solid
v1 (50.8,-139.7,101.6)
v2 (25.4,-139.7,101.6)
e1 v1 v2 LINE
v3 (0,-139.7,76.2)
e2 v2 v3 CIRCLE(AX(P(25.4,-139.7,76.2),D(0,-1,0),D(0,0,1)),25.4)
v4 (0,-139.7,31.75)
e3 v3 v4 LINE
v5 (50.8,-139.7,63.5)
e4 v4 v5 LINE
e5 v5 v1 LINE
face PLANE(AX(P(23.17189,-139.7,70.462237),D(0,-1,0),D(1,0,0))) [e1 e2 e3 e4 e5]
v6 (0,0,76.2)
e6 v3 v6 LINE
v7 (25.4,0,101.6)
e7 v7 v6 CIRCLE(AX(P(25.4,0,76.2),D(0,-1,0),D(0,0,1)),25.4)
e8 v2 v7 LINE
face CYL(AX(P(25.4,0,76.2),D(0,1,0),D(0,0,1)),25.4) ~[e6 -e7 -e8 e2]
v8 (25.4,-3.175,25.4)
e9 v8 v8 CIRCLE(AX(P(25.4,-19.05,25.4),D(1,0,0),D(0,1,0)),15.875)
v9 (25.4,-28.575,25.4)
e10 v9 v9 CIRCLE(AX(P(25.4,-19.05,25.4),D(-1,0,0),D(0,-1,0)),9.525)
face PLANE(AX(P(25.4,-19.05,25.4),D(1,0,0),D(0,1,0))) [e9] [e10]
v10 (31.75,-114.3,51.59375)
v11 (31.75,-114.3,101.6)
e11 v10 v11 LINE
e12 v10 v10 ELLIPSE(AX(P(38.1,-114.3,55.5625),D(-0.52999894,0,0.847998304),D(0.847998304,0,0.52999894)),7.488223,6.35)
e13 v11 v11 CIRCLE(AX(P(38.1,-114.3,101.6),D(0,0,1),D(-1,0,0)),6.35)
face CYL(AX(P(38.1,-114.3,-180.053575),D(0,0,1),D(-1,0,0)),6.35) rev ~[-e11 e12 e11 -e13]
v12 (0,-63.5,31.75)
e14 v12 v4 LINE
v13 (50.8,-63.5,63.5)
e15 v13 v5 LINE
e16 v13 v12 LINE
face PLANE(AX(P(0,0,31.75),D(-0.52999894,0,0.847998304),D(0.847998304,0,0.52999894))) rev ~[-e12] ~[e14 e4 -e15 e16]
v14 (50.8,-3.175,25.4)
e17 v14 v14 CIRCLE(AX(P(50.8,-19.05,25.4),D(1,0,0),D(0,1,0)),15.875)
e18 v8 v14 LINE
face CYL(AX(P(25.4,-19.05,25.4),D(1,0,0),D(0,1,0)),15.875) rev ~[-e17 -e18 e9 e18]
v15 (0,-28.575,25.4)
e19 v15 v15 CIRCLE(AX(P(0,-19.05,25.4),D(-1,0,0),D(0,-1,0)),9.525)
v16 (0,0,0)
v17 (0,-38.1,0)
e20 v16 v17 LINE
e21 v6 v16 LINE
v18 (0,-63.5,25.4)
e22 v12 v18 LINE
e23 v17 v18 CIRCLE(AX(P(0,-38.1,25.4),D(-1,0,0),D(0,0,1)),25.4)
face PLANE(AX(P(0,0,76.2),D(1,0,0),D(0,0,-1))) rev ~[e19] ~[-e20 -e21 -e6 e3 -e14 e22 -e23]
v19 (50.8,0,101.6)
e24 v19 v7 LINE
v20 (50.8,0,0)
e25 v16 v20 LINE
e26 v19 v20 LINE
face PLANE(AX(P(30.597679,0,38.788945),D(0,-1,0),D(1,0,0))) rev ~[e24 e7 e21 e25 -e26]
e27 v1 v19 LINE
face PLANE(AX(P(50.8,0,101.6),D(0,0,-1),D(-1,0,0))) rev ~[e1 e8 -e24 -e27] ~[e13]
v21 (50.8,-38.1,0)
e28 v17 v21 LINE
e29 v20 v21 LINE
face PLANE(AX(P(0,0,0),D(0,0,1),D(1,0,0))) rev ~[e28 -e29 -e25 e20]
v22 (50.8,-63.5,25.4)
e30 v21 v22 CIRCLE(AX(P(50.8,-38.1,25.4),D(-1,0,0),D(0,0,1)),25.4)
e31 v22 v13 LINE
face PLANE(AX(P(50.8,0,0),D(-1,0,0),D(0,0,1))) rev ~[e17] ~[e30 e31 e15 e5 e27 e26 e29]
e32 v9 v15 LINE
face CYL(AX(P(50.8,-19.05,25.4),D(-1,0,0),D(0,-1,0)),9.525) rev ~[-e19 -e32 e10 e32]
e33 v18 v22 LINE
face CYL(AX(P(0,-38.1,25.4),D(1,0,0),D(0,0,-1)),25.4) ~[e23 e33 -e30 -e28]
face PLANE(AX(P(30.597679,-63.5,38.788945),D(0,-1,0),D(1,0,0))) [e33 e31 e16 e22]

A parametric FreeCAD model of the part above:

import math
import FreeCAD as App
import Part
import Sketcher
Q = App.Units.Quantity


def edges_at(feature, points):
    """Names of the edges that pass closest to the given points."""
    edges = feature.Shape.Edges
    near = lambda p: min(range(len(edges)), key=lambda i: edges[i].distToShape(Part.Vertex(*p))[0])
    return sorted({f"Edge{near(p) + 1}" for p in points})

doc = App.newDocument("Part")
params = doc.addObject("Spreadsheet::Sheet", "Params")
for row, (alias, value) in enumerate([
    ("sketch1_radius", "1 in"),
    ("sketch1_width", "2 in"),
    ("sketch1_height", "4 in"),
    ("pad1_length", "2.5 in"),
    ("sketch2_radius", "1 in"),
    ("sketch2_width", "1 in"),
    ("sketch2_height", "1.5 in"),
    ("sketch2_height2", "1.75 in"),
    ("pad2_length", "5.5 in"),
    ("fillet_radius", "1 in"),
    ("sketch3_diameter", "0.5 in"),
    ("hole_diameter", "0.5 in"),
    ("sketch4_diameter", "0.75 in"),
    ("hole2_diameter", "0.75 in"),
    ("hole2_cbore_diameter", "1.25 in"),
    ("hole2_cbore_depth", "1 in"),
], start=1):
    params.set(f"A{row}", alias)
    params.set(f"B{row}", "=" + value)
    params.setAlias(f"B{row}", alias)

body = doc.addObject("PartDesign::Body", "Body")

sketch1 = body.newObject("Sketcher::SketchObject", "Sketch")
sketch1.AttachmentSupport = (doc.getObject("XZ_Plane"), [""])
sketch1.MapMode = "FlatFace"
sketch1.addGeometry([
    Part.LineSegment(App.Vector(0, 0, 0), App.Vector(51, 0, 0)),
    Part.LineSegment(App.Vector(51, 0, 0), App.Vector(51, 102, 0)),
    Part.LineSegment(App.Vector(51, 102, 0), App.Vector(25, 102, 0)),
    Part.ArcOfCircle(Part.Circle(App.Vector(25, 76, 0), App.Vector(0, 0, 1), 25), math.radians(90), math.radians(180)),
    Part.LineSegment(App.Vector(0, 76, 0), App.Vector(0, 0, 0)),
], False)
sketch1.addConstraint([
    Sketcher.Constraint("Coincident", 0, 2, 1, 1),
    Sketcher.Constraint("Coincident", 1, 2, 2, 1),
    Sketcher.Constraint("Tangent", 2, 2, 3, 1),
    Sketcher.Constraint("Tangent", 3, 2, 4, 1),
    Sketcher.Constraint("Coincident", 4, 2, 0, 1),
    Sketcher.Constraint("Horizontal", 0),
    Sketcher.Constraint("Vertical", 1),
    Sketcher.Constraint("Horizontal", 2),
    Sketcher.Constraint("Vertical", 4),
    Sketcher.Constraint("Coincident", 4, 2, -1, 1),
    Sketcher.Constraint("Radius", 3, Q("1 in")),
    Sketcher.Constraint("DistanceX", 0, 1, 0, 2, Q("2 in")),
    Sketcher.Constraint("DistanceY", 1, 1, 1, 2, Q("4 in")),
])
sketch1.setExpression("Constraints[10]", "Params.sketch1_radius")
sketch1.setExpression("Constraints[11]", "Params.sketch1_width")
sketch1.setExpression("Constraints[12]", "Params.sketch1_height")
pad1 = body.newObject("PartDesign::Pad", "Pad")
pad1.Profile = sketch1
pad1.setExpression("Length", "Params.pad1_length")

sketch2 = body.newObject("Sketcher::SketchObject", "Sketch001")
sketch2.AttachmentSupport = (doc.getObject("XZ_Plane"), [""])
sketch2.MapMode = "FlatFace"
sketch2.addGeometry([
    Part.LineSegment(App.Vector(0, 76, 0), App.Vector(0, 32, 0)),
    Part.LineSegment(App.Vector(0, 32, 0), App.Vector(51, 64, 0)),
    Part.LineSegment(App.Vector(51, 64, 0), App.Vector(51, 102, 0)),
    Part.LineSegment(App.Vector(51, 102, 0), App.Vector(25, 102, 0)),
    Part.ArcOfCircle(Part.Circle(App.Vector(25, 76, 0), App.Vector(0, 0, 1), 25), math.radians(90), math.radians(180)),
], False)
sketch2.addConstraint([
    Sketcher.Constraint("Coincident", 0, 2, 1, 1),
    Sketcher.Constraint("Coincident", 1, 2, 2, 1),
    Sketcher.Constraint("Coincident", 2, 2, 3, 1),
    Sketcher.Constraint("Tangent", 3, 2, 4, 1),
    Sketcher.Constraint("Tangent", 4, 2, 0, 1),
    Sketcher.Constraint("Vertical", 0),
    Sketcher.Constraint("Vertical", 2),
    Sketcher.Constraint("Horizontal", 3),
    Sketcher.Constraint("PointOnObject", 0, 2, -2),
    Sketcher.Constraint("Radius", 4, Q("1 in")),
    Sketcher.Constraint("DistanceX", 3, 2, 3, 1, Q("1 in")),
    Sketcher.Constraint("DistanceY", 2, 1, 2, 2, Q("1.5 in")),
    Sketcher.Constraint("DistanceY", -1, 1, 4, 3, Q("3 in")),
    Sketcher.Constraint("DistanceY", 0, 2, 0, 1, Q("1.75 in")),
])
sketch2.setExpression("Constraints[9]", "Params.sketch2_radius")
sketch2.setExpression("Constraints[10]", "Params.sketch2_width")
sketch2.setExpression("Constraints[11]", "Params.sketch2_height")
sketch2.setExpression("Constraints[13]", "Params.sketch2_height2")
pad2 = body.newObject("PartDesign::Pad", "Pad001")
pad2.Profile = sketch2
pad2.setExpression("Length", "Params.pad2_length")
doc.recompute()

fillet = body.newObject("PartDesign::Fillet", "Fillet")
fillet.Base = (pad2, edges_at(pad2, [(25.4, -63.5, 0)]))
fillet.setExpression("Radius", "Params.fillet_radius")

sketch3 = body.newObject("Sketcher::SketchObject", "Sketch002")
sketch3.AttachmentSupport = (doc.getObject("XY_Plane"), [""])
sketch3.MapMode = "FlatFace"
sketch3.addGeometry(Part.Circle(App.Vector(38, -114, 0), App.Vector(0, 0, 1), 6), False)
sketch3.addConstraint([
    Sketcher.Constraint("Diameter", 0, Q("0.5 in")),
    Sketcher.Constraint("DistanceX", -1, 1, 0, 3, Q("1.5 in")),
    Sketcher.Constraint("DistanceY", 0, 3, -1, 1, Q("4.5 in")),
])
sketch3.setExpression("Constraints[0]", "Params.sketch3_diameter")
doc.recompute()
hole = body.newObject("PartDesign::Hole", "Hole")
hole.Profile = sketch3
hole.ThreadType = "None"
hole.setExpression("Diameter", "Params.hole_diameter")
hole.DepthType = "ThroughAll"
hole.Reversed = True

sketch4 = body.newObject("Sketcher::SketchObject", "Sketch003")
sketch4.AttachmentSupport = (doc.getObject("YZ_Plane"), [""])
sketch4.MapMode = "FlatFace"
sketch4.AttachmentOffset = App.Placement(App.Vector(0, 0, 2 * 25.4), App.Rotation())
sketch4.addGeometry(Part.Circle(App.Vector(-19, 25, 0), App.Vector(0, 0, 1), 10), False)
sketch4.addConstraint([
    Sketcher.Constraint("Diameter", 0, Q("0.75 in")),
    Sketcher.Constraint("DistanceY", -1, 1, 0, 3, Q("1 in")),
    Sketcher.Constraint("DistanceX", 0, 3, -1, 1, Q("0.75 in")),
])
sketch4.setExpression("Constraints[0]", "Params.sketch4_diameter")
doc.recompute()
hole2 = body.newObject("PartDesign::Hole", "Hole001")
hole2.Profile = sketch4
hole2.ThreadType = "None"
hole2.setExpression("Diameter", "Params.hole2_diameter")
hole2.DepthType = "ThroughAll"
hole2.HoleCutType = "Counterbore"
hole2.setExpression("HoleCutDiameter", "Params.hole2_cbore_diameter")
hole2.setExpression("HoleCutDepth", "Params.hole2_cbore_depth")

doc.recompute()
